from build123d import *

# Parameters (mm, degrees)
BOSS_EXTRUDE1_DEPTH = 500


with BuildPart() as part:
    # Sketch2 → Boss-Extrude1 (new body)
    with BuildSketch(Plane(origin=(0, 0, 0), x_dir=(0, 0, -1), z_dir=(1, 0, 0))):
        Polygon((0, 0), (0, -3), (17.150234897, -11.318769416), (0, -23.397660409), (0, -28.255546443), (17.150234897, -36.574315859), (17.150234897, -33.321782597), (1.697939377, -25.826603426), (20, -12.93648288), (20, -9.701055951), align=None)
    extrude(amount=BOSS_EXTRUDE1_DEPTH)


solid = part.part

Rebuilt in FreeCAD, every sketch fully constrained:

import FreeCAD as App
import Part
import Sketcher
from FreeCAD import Vector


def add_polygon(sketch, points):
    """Adds a closed chain of lines whose ends are joined by coincident constraints."""
    first, n = sketch.GeometryCount, len(points)
    for a, b in zip(points, points[1:] + points[:1]):
        sketch.addGeometry(Part.LineSegment(App.Vector(*a, 0), App.Vector(*b, 0)), False)
    for i in range(n):
        sketch.addConstraint(Sketcher.Constraint("Coincident", first + i, 2, first + (i + 1) % n, 1))

doc = App.newDocument("Part")
body = doc.addObject("PartDesign::Body", "Body")

# Sketch on YZ plane
sketch1 = doc.addObject("Sketcher::SketchObject", "Sketch")
body.addObject(sketch1)
sketch1.AttachmentSupport = (doc.YZ_Plane, [""])
sketch1.MapMode = "FlatFace"
add_polygon(sketch1, [(0, 0), (-3, 0), (-11.318769, -17.150235), (-23.39766, 0), (-28.255546, 0), (-36.574316, -17.150235), (-33.321783, -17.150235), (-25.826603, -1.697939), (-12.936483, -20), (-9.701056, -20)])  # lines 0-9
sketch1.addConstraint([
    Sketcher.Constraint("Horizontal", 0),
    Sketcher.Constraint("Horizontal", 3),
    Sketcher.Constraint("Horizontal", 5),
    Sketcher.Constraint("Horizontal", 8),
    Sketcher.Constraint("Coincident", 9, 2, -1, 1),
    Sketcher.Constraint("PointOnObject", 2, 2, -1),
    Sketcher.Constraint("Parallel", 1, 4),
    Sketcher.Constraint("Parallel", 4, 6),
    Sketcher.Constraint("Parallel", 2, 7),
    Sketcher.Constraint("Parallel", 6, 9),
    Sketcher.Constraint("Horizontal", 1, 2, 4, 2),
    Sketcher.Constraint("DistanceX", 0, 2, 0, 1, 3.0),
    Sketcher.Constraint("DistanceY", 7, 2, -1, 1, 20.0),
    Sketcher.Constraint("DistanceX", 5, 2, 7, 2, 20.3853),
    Sketcher.Constraint("Distance", 6, 17.174142),
    Sketcher.Constraint("DistanceX", 3, 2, 3, 1, 4.857886),
    Sketcher.Constraint("DistanceX", 5, 1, 5, 2, 3.252533),
    Sketcher.Constraint("DistanceX", 8, 1, 8, 2, 3.235427),
    Sketcher.Constraint("DistanceX", 1, 2, -1, 1, 11.318769),
])
pad1 = doc.addObject("PartDesign::Pad", "Pad")
body.addObject(pad1)
pad1.Profile = sketch1
pad1.Length = 500

doc.recompute()
